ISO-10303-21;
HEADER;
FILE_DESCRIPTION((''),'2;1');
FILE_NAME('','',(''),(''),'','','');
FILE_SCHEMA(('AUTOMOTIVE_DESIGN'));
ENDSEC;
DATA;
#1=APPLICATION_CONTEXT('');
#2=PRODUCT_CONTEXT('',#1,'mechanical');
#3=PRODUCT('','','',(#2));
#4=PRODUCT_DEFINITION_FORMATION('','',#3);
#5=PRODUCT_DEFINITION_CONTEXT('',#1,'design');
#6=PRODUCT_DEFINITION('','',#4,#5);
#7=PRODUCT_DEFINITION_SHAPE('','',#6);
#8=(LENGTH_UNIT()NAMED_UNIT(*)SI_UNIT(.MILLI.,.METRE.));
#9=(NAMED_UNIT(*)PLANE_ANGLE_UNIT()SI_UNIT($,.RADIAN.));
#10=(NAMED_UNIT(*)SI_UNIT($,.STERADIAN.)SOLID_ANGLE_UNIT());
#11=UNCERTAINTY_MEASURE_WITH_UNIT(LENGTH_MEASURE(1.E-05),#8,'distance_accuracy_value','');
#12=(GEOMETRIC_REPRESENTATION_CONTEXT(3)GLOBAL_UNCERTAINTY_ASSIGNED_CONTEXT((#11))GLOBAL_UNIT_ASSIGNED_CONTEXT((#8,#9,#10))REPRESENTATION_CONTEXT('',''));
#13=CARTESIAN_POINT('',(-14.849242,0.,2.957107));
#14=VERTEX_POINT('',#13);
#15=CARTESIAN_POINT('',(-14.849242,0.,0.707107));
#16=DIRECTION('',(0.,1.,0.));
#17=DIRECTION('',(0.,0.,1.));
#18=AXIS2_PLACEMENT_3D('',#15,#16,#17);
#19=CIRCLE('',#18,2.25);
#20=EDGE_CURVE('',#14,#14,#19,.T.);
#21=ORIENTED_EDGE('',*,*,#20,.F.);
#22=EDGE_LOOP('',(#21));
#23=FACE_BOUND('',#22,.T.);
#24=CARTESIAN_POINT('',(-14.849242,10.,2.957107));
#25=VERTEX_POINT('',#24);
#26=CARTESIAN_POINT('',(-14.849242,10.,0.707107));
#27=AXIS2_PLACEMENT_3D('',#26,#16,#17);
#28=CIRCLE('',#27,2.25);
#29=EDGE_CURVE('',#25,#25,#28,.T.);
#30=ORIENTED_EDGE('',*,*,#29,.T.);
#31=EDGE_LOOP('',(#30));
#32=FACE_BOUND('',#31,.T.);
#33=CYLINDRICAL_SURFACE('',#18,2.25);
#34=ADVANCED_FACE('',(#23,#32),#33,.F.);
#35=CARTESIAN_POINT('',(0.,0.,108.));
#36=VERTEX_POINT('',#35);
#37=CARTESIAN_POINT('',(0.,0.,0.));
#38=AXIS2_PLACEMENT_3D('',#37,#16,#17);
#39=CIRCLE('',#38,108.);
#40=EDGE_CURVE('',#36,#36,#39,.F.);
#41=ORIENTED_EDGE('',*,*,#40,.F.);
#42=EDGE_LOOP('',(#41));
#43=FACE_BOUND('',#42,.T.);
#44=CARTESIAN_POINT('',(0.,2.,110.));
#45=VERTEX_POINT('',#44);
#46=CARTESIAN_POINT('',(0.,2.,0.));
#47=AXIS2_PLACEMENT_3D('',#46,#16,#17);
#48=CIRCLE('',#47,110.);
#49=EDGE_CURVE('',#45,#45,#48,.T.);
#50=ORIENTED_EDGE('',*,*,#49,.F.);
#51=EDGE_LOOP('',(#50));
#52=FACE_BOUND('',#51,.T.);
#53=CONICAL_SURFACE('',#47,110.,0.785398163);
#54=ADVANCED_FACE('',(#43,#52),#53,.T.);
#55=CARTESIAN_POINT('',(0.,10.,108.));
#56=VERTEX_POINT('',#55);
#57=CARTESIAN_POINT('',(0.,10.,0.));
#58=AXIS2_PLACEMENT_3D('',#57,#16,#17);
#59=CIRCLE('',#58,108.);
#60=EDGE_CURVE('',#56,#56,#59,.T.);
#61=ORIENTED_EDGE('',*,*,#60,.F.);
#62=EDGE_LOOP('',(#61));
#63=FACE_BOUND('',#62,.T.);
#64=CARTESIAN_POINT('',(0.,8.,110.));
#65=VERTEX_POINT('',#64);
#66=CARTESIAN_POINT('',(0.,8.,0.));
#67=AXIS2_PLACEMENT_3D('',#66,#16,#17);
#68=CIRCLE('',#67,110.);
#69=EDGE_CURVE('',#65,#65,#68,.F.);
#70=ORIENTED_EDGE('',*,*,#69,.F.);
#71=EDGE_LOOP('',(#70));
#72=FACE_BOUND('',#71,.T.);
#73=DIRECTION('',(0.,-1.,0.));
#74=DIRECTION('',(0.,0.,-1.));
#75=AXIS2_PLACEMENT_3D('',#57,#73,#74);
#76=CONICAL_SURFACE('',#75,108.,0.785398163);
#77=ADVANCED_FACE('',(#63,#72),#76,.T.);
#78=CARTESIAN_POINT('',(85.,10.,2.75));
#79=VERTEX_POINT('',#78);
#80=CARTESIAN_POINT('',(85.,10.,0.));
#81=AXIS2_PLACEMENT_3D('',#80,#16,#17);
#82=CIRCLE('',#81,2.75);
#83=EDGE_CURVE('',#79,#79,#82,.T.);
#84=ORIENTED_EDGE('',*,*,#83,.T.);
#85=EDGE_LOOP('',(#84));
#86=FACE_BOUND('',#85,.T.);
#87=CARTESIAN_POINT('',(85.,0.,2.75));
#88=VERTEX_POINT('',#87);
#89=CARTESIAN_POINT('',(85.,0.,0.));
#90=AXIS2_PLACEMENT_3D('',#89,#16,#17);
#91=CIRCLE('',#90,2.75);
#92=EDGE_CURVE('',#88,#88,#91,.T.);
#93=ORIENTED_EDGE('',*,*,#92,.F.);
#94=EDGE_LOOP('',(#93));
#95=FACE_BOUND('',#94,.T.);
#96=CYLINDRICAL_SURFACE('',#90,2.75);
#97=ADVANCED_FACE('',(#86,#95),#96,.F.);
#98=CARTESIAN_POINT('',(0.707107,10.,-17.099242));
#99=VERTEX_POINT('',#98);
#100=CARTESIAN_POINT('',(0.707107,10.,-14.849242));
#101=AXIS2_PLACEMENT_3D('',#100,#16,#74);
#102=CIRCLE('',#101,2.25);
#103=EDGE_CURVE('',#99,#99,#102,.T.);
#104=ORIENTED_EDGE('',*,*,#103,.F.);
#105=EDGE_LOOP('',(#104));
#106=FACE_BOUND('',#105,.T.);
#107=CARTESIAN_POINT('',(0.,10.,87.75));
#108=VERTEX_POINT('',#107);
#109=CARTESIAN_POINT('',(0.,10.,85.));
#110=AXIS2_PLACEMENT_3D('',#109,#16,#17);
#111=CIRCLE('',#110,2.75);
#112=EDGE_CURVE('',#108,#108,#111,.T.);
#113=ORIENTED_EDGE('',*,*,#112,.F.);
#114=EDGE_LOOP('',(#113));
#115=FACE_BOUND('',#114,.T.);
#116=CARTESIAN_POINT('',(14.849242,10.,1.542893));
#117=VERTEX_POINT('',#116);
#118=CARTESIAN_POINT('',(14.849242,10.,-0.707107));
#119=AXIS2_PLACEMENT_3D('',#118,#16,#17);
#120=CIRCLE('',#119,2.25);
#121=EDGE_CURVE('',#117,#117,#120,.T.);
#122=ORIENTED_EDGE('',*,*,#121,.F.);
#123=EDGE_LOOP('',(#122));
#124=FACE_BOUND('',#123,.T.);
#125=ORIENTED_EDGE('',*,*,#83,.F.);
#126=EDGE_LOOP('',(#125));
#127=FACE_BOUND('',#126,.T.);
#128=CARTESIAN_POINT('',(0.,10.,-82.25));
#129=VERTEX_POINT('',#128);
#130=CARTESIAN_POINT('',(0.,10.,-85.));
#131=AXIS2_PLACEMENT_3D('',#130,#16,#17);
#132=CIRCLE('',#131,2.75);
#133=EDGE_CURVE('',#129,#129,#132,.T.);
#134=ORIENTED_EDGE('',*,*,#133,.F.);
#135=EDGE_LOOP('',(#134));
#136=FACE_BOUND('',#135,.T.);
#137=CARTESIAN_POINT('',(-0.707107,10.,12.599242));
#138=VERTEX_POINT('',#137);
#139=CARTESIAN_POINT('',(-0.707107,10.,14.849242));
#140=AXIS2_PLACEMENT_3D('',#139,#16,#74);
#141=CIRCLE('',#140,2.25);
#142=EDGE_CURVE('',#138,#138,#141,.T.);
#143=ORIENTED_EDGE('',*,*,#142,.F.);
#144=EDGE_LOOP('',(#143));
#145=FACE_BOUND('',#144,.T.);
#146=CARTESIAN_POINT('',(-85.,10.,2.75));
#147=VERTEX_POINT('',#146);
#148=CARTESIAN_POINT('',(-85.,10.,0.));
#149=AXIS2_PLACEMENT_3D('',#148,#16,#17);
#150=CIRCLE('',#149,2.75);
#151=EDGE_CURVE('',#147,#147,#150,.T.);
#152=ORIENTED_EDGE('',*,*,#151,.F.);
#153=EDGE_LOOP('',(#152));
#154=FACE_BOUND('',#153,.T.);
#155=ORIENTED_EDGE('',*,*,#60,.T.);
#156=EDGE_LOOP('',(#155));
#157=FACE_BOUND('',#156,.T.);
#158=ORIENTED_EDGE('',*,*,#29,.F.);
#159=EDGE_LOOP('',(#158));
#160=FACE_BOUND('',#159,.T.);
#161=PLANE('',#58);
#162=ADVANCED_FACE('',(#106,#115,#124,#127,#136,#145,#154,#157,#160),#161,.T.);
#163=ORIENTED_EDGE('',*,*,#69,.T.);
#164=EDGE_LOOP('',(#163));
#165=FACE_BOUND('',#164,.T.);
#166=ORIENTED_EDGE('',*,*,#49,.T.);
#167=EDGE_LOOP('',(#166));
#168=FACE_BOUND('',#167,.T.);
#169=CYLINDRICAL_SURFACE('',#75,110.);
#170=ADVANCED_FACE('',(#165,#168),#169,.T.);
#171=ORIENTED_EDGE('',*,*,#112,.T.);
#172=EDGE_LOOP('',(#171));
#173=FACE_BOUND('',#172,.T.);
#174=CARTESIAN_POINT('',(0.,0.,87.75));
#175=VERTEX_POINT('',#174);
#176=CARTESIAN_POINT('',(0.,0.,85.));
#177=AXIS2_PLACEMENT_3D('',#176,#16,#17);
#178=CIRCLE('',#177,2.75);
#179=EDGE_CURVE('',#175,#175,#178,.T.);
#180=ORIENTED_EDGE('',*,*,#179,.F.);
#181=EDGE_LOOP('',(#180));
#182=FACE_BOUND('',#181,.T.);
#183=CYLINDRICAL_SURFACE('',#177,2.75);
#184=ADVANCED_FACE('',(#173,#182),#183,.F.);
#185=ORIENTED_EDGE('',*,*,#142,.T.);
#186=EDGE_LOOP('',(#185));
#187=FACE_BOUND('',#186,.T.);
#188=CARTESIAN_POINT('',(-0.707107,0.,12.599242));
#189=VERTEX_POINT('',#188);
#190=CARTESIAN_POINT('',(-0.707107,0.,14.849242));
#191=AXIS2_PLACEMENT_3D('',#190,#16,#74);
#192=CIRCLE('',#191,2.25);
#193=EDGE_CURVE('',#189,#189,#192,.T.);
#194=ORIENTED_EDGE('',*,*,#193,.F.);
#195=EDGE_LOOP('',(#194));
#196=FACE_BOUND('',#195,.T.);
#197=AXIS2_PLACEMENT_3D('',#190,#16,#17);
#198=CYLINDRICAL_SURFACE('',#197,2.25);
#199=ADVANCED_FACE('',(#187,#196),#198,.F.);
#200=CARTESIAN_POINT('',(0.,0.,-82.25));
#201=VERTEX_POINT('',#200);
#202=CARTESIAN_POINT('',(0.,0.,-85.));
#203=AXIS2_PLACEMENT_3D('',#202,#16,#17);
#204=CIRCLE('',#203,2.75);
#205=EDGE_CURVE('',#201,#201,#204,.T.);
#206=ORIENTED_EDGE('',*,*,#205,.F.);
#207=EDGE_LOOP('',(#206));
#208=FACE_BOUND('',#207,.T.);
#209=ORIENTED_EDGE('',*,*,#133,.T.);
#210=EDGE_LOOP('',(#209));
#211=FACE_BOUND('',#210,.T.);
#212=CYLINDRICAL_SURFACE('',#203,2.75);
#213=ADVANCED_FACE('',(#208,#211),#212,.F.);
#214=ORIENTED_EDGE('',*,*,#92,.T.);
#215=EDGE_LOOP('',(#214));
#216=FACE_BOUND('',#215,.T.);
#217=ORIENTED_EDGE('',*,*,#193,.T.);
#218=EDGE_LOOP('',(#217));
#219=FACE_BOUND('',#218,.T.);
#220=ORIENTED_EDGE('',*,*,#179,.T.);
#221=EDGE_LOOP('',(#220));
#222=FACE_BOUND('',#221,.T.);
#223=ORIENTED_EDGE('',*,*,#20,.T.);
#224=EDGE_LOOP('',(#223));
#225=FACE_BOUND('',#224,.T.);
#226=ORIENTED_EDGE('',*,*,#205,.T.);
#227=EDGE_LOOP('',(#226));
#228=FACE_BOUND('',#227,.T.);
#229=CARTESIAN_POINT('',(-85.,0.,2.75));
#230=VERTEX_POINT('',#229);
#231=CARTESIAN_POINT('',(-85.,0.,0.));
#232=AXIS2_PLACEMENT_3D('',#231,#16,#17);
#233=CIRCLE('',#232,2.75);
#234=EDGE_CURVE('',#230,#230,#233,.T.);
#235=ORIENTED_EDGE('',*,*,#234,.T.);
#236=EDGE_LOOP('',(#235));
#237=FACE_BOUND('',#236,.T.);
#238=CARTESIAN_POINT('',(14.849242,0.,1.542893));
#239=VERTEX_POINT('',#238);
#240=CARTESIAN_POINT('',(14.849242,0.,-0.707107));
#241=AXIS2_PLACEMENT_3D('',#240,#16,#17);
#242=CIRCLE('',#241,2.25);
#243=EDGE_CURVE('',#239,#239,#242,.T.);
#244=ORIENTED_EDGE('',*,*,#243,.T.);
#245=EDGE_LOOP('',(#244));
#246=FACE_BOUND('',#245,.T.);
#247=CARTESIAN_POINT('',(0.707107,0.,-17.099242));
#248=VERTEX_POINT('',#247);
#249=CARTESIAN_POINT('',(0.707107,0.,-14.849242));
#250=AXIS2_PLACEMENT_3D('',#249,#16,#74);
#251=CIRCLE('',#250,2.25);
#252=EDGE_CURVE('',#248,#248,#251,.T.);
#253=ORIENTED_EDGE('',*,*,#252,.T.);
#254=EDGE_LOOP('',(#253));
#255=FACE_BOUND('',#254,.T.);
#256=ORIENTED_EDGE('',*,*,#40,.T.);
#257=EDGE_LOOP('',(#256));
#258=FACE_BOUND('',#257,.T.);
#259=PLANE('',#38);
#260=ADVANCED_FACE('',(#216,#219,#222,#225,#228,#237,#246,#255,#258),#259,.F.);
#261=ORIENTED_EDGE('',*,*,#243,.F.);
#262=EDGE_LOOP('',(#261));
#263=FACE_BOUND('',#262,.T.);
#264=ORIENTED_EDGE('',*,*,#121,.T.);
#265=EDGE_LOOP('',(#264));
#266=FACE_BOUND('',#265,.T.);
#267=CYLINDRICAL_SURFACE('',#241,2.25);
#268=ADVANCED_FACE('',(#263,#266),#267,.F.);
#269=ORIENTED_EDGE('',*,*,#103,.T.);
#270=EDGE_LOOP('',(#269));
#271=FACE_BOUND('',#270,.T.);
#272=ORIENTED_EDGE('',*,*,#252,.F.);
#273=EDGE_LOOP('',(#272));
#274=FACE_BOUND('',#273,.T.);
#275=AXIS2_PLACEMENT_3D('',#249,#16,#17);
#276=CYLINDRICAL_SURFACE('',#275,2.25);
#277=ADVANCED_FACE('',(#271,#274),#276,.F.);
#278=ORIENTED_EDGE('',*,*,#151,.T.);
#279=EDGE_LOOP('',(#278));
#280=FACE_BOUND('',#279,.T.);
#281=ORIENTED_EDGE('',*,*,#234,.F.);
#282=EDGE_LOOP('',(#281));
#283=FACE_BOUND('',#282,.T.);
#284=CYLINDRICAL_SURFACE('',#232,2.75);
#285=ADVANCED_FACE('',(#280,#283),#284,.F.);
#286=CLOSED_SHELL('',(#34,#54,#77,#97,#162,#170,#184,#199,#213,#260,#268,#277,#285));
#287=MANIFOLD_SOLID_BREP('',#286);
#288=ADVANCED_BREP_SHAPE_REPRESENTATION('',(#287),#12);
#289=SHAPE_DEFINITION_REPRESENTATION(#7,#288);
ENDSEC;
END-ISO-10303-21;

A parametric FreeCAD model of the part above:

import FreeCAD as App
import Part
import Sketcher

V = App.Vector
Q = App.Units.Quantity


def edges_at(feature, points):
    """Names of the edges that pass closest to the given points."""
    edges = feature.Shape.Edges
    near = lambda p: min(range(len(edges)), key=lambda i: edges[i].distToShape(Part.Vertex(*p))[0])
    return sorted({f"Edge{near(p) + 1}" for p in points})

doc = App.newDocument("Part")
body = doc.addObject("PartDesign::Body", "Body")

sketch1 = body.newObject("Sketcher::SketchObject", "Sketch")
sketch1.AttachmentSupport = (doc.getObject("XZ_Plane"), [""])
sketch1.MapMode = "FlatFace"
sketch1.addGeometry(Part.Circle(V(0, 0, 0), V(0, 0, 1), 110), False)
sketch1.addConstraint(Sketcher.Constraint("Coincident", 0, 3, -1, 1))
sketch1.addConstraint(Sketcher.Constraint("Diameter", 0, Q("220 mm")))
pad1 = body.newObject("PartDesign::Pad", "Pad")
pad1.Profile = sketch1
pad1.Length = 10
pad1.Reversed = True

sketch2 = body.newObject("Sketcher::SketchObject", "Sketch001")
sketch2.AttachmentSupport = (doc.getObject("XZ_Plane"), [""])
sketch2.MapMode = "FlatFace"
sketch2.AttachmentOffset = App.Placement(V(0, 0, -10), App.Rotation())
sketch2.addGeometry(Part.Circle(V(-85, 0, 0), V(0, 0, 1), 2.75), False)
sketch2.addGeometry(Part.Circle(V(0, -85, 0), V(0, 0, 1), 2.75), False)
sketch2.addGeometry(Part.Circle(V(85, 0, 0), V(0, 0, 1), 2.75), False)
sketch2.addGeometry(Part.Circle(V(0, 85, 0), V(0, 0, 1), 2.75), False)
sketch2.addConstraint(Sketcher.Constraint("Equal", 0, 1))
sketch2.addConstraint(Sketcher.Constraint("Equal", 1, 2))
sketch2.addConstraint(Sketcher.Constraint("Equal", 2, 3))
sketch2.addConstraint(Sketcher.Constraint("Symmetric", 0, 3, 2, 3, -1, 1))
sketch2.addConstraint(Sketcher.Constraint("Symmetric", 1, 3, 3, 3, -1, 1))
sketch2.addConstraint(Sketcher.Constraint("PointOnObject", 0, 3, -1))
sketch2.addConstraint(Sketcher.Constraint("PointOnObject", 1, 3, -2))
sketch2.addConstraint(Sketcher.Constraint("Diameter", 0, Q("5.5 mm")))
sketch2.addConstraint(Sketcher.Constraint("DistanceX", 0, 3, -1, 1, Q("85 mm")))
sketch2.addConstraint(Sketcher.Constraint("DistanceY", 1, 3, -1, 1, Q("85 mm")))
pocket1 = body.newObject("PartDesign::Pocket", "Pocket")
pocket1.Profile = sketch2
pocket1.Type = "ThroughAll"
pocket1.Reversed = True
doc.recompute()

chamfer = body.newObject("PartDesign::Chamfer", "Chamfer")
chamfer.Base = (pocket1, edges_at(pocket1, [(0, 0, -110), (0, 10, -110)]))
chamfer.Size = 2

sketch3 = body.newObject("Sketcher::SketchObject", "Sketch002")
sketch3.AttachmentSupport = (doc.getObject("XZ_Plane"), [""])
sketch3.MapMode = "FlatFace"
sketch3.AttachmentOffset = App.Placement(V(0, 0, -10), App.Rotation())
sketch3.addGeometry(Part.Circle(V(14.849242, -0.707107, 0), V(0, 0, 1), 2.25), False)
sketch3.addGeometry(Part.Circle(V(0.707107, -14.849242, 0), V(0, 0, 1), 2.25), False)
sketch3.addGeometry(Part.Circle(V(-14.849242, 0.707107, 0), V(0, 0, 1), 2.25), False)
sketch3.addGeometry(Part.Circle(V(-0.707107, 14.849242, 0), V(0, 0, 1), 2.25), False)
sketch3.addConstraint(Sketcher.Constraint("Equal", 0, 1))
sketch3.addConstraint(Sketcher.Constraint("Equal", 1, 2))
sketch3.addConstraint(Sketcher.Constraint("Equal", 2, 3))
sketch3.addConstraint(Sketcher.Constraint("Symmetric", 0, 3, 2, 3, -1, 1))
sketch3.addConstraint(Sketcher.Constraint("Symmetric", 1, 3, 3, 3, -1, 1))
sketch3.addConstraint(Sketcher.Constraint("Diameter", 0, Q("4.5 mm")))
sketch3.addConstraint(Sketcher.Constraint("DistanceX", 2, 3, 1, 3, Q("15.556349 mm")))
sketch3.addConstraint(Sketcher.Constraint("DistanceY", 1, 3, 2, 3, Q("15.556349 mm")))
sketch3.addConstraint(Sketcher.Constraint("DistanceX", -1, 1, 0, 3, Q("14.849242 mm")))
sketch3.addConstraint(Sketcher.Constraint("DistanceY", 0, 3, -1, 1, Q("0.707107 mm")))
pocket2 = body.newObject("PartDesign::Pocket", "Pocket001")
pocket2.Profile = sketch3
pocket2.Type = "ThroughAll"
pocket2.Reversed = True

doc.recompute()
